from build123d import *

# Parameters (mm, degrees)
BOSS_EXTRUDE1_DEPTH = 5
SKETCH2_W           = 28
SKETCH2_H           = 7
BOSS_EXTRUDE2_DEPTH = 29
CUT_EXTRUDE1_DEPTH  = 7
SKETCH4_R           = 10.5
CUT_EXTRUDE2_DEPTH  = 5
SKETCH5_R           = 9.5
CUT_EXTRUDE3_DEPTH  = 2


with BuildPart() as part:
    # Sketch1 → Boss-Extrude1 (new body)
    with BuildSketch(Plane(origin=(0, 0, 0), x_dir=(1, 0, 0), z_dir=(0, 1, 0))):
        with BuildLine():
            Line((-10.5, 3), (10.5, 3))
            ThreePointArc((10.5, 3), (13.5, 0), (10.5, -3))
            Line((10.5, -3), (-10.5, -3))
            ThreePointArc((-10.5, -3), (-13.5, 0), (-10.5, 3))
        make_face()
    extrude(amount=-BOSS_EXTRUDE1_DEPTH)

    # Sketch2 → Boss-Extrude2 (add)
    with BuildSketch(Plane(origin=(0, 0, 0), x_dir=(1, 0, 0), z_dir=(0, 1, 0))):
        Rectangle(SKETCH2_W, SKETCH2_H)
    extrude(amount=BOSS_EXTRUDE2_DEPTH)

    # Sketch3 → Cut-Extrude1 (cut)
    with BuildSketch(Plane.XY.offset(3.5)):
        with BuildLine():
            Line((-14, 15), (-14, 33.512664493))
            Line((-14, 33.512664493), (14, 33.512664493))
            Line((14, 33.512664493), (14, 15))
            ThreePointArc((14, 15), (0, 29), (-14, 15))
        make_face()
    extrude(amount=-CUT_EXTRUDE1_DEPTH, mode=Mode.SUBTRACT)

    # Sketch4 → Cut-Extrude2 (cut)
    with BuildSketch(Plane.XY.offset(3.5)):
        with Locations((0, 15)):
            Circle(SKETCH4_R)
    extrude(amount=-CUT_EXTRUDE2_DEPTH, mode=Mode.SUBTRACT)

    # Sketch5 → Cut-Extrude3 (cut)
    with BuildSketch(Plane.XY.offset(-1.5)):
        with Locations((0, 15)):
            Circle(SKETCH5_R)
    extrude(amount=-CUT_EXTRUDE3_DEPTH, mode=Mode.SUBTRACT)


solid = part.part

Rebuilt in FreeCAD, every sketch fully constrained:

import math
import FreeCAD as App
import Part
import Sketcher

V = App.Vector


def add_polygon(sketch, points):
    """Adds a closed chain of lines whose ends are joined by coincident constraints."""
    first, n = sketch.GeometryCount, len(points)
    for a, b in zip(points, points[1:] + points[:1]):
        sketch.addGeometry(Part.LineSegment(App.Vector(*a, 0), App.Vector(*b, 0)), False)
    for i in range(n):
        sketch.addConstraint(Sketcher.Constraint("Coincident", first + i, 2, first + (i + 1) % n, 1))

doc = App.newDocument("Part")
body = doc.addObject("PartDesign::Body", "Body")

sketch1 = body.newObject("Sketcher::SketchObject", "Sketch")
sketch1.AttachmentSupport = (doc.getObject("XZ_Plane"), [""])
sketch1.MapMode = "FlatFace"
sketch1.addGeometry([
    Part.LineSegment(V(10.5, -3, 0), V(-10.5, -3, 0)),
    Part.ArcOfCircle(Part.Circle(V(-10.5, 0, 0), V(0, 0, 1), 3), math.radians(90), math.radians(270)),
    Part.LineSegment(V(-10.5, 3, 0), V(10.5, 3, 0)),
    Part.ArcOfCircle(Part.Circle(V(10.5, 0, 0), V(0, 0, 1), 3), math.radians(-90), math.radians(90)),
], False)
sketch1.addConstraint([
    Sketcher.Constraint("Tangent", 0, 2, 1, 2),
    Sketcher.Constraint("Tangent", 1, 1, 2, 1),
    Sketcher.Constraint("Tangent", 2, 2, 3, 2),
    Sketcher.Constraint("Tangent", 3, 1, 0, 1),
    Sketcher.Constraint("Horizontal", 0),
    Sketcher.Constraint("Horizontal", 2),
    Sketcher.Constraint("Symmetric", 1, 3, 3, 3, -1, 1),
    Sketcher.Constraint("Radius", 1, 3.0),
    Sketcher.Constraint("DistanceX", 0, 2, 0, 1, 21.0),
])
pad1 = body.newObject("PartDesign::Pad", "Pad")
pad1.Profile = sketch1
pad1.Length = 5

sketch2 = body.newObject("Sketcher::SketchObject", "Sketch001")
sketch2.AttachmentSupport = (doc.getObject("XZ_Plane"), [""])
sketch2.MapMode = "FlatFace"
add_polygon(sketch2, [(-14, -4), (-14, 4), (14, 4), (14, -4)])
sketch2.addConstraint([
    Sketcher.Constraint("Vertical", 0),
    Sketcher.Constraint("Horizontal", 1),
    Sketcher.Constraint("Vertical", 2),
    Sketcher.Constraint("Horizontal", 3),
    Sketcher.Constraint("Symmetric", 0, 2, 2, 2, -1, 1),
    Sketcher.Constraint("DistanceX", 1, 1, 1, 2, 28.0),
    Sketcher.Constraint("DistanceY", 0, 1, 0, 2, 7.0),
])
pad2 = body.newObject("PartDesign::Pad", "Pad001")
pad2.Profile = sketch2
pad2.Length = 29
pad2.Reversed = True

sketch3 = body.newObject("Sketcher::SketchObject", "Sketch002")
sketch3.AttachmentSupport = (doc.getObject("XY_Plane"), [""])
sketch3.MapMode = "FlatFace"
sketch3.AttachmentOffset = App.Placement(V(0, 0, 3.5), App.Rotation())
sketch3.addGeometry([
    Part.LineSegment(V(-14, 34, 0), V(-14, 15, 0)),
    Part.ArcOfCircle(Part.Circle(V(0, 15, 0), V(0, 0, 1), 14), math.radians(0), math.radians(180)),
    Part.LineSegment(V(14, 15, 0), V(14, 34, 0)),
    Part.LineSegment(V(14, 34, 0), V(-14, 34, 0)),
], False)
sketch3.addConstraint([
    Sketcher.Constraint("Tangent", 0, 2, 1, 2),
    Sketcher.Constraint("Tangent", 1, 1, 2, 1),
    Sketcher.Constraint("Coincident", 2, 2, 3, 1),
    Sketcher.Constraint("Coincident", 3, 2, 0, 1),
    Sketcher.Constraint("Vertical", 0),
    Sketcher.Constraint("Vertical", 2),
    Sketcher.Constraint("Horizontal", 3),
    Sketcher.Constraint("PointOnObject", 1, 3, -2),
    Sketcher.Constraint("Radius", 1, 14.0),
    Sketcher.Constraint("DistanceY", -1, 1, 1, 3, 15.0),
    Sketcher.Constraint("DistanceY", 0, 2, 0, 1, 18.512664),
])
pocket1 = body.newObject("PartDesign::Pocket", "Pocket")
pocket1.Profile = sketch3
pocket1.Length = 7

sketch4 = body.newObject("Sketcher::SketchObject", "Sketch003")
sketch4.AttachmentSupport = (doc.getObject("XY_Plane"), [""])
sketch4.MapMode = "FlatFace"
sketch4.AttachmentOffset = App.Placement(V(0, 0, 3.5), App.Rotation())
sketch4.addGeometry(Part.Circle(V(0, 15, 0), V(0, 0, 1), 10), False)
sketch4.addConstraint([
    Sketcher.Constraint("PointOnObject", 0, 3, -2),
    Sketcher.Constraint("Diameter", 0, 21.0),
    Sketcher.Constraint("DistanceY", -1, 1, 0, 3, 15.0),
])
pocket2 = body.newObject("PartDesign::Pocket", "Pocket001")
pocket2.Profile = sketch4
pocket2.Length = 5

sketch5 = body.newObject("Sketcher::SketchObject", "Sketch004")
sketch5.AttachmentSupport = (doc.getObject("XY_Plane"), [""])
sketch5.MapMode = "FlatFace"
sketch5.AttachmentOffset = App.Placement(V(0, 0, -1.5), App.Rotation())
sketch5.addGeometry(Part.Circle(V(0, 15, 0), V(0, 0, 1), 10), False)
sketch5.addConstraint([
    Sketcher.Constraint("PointOnObject", 0, 3, -2),
    Sketcher.Constraint("Diameter", 0, 19.0),
    Sketcher.Constraint("DistanceY", -1, 1, 0, 3, 15.0),
])
pocket3 = body.newObject("PartDesign::Pocket", "Pocket002")
pocket3.Profile = sketch5
pocket3.Length = 2

doc.recompute()
